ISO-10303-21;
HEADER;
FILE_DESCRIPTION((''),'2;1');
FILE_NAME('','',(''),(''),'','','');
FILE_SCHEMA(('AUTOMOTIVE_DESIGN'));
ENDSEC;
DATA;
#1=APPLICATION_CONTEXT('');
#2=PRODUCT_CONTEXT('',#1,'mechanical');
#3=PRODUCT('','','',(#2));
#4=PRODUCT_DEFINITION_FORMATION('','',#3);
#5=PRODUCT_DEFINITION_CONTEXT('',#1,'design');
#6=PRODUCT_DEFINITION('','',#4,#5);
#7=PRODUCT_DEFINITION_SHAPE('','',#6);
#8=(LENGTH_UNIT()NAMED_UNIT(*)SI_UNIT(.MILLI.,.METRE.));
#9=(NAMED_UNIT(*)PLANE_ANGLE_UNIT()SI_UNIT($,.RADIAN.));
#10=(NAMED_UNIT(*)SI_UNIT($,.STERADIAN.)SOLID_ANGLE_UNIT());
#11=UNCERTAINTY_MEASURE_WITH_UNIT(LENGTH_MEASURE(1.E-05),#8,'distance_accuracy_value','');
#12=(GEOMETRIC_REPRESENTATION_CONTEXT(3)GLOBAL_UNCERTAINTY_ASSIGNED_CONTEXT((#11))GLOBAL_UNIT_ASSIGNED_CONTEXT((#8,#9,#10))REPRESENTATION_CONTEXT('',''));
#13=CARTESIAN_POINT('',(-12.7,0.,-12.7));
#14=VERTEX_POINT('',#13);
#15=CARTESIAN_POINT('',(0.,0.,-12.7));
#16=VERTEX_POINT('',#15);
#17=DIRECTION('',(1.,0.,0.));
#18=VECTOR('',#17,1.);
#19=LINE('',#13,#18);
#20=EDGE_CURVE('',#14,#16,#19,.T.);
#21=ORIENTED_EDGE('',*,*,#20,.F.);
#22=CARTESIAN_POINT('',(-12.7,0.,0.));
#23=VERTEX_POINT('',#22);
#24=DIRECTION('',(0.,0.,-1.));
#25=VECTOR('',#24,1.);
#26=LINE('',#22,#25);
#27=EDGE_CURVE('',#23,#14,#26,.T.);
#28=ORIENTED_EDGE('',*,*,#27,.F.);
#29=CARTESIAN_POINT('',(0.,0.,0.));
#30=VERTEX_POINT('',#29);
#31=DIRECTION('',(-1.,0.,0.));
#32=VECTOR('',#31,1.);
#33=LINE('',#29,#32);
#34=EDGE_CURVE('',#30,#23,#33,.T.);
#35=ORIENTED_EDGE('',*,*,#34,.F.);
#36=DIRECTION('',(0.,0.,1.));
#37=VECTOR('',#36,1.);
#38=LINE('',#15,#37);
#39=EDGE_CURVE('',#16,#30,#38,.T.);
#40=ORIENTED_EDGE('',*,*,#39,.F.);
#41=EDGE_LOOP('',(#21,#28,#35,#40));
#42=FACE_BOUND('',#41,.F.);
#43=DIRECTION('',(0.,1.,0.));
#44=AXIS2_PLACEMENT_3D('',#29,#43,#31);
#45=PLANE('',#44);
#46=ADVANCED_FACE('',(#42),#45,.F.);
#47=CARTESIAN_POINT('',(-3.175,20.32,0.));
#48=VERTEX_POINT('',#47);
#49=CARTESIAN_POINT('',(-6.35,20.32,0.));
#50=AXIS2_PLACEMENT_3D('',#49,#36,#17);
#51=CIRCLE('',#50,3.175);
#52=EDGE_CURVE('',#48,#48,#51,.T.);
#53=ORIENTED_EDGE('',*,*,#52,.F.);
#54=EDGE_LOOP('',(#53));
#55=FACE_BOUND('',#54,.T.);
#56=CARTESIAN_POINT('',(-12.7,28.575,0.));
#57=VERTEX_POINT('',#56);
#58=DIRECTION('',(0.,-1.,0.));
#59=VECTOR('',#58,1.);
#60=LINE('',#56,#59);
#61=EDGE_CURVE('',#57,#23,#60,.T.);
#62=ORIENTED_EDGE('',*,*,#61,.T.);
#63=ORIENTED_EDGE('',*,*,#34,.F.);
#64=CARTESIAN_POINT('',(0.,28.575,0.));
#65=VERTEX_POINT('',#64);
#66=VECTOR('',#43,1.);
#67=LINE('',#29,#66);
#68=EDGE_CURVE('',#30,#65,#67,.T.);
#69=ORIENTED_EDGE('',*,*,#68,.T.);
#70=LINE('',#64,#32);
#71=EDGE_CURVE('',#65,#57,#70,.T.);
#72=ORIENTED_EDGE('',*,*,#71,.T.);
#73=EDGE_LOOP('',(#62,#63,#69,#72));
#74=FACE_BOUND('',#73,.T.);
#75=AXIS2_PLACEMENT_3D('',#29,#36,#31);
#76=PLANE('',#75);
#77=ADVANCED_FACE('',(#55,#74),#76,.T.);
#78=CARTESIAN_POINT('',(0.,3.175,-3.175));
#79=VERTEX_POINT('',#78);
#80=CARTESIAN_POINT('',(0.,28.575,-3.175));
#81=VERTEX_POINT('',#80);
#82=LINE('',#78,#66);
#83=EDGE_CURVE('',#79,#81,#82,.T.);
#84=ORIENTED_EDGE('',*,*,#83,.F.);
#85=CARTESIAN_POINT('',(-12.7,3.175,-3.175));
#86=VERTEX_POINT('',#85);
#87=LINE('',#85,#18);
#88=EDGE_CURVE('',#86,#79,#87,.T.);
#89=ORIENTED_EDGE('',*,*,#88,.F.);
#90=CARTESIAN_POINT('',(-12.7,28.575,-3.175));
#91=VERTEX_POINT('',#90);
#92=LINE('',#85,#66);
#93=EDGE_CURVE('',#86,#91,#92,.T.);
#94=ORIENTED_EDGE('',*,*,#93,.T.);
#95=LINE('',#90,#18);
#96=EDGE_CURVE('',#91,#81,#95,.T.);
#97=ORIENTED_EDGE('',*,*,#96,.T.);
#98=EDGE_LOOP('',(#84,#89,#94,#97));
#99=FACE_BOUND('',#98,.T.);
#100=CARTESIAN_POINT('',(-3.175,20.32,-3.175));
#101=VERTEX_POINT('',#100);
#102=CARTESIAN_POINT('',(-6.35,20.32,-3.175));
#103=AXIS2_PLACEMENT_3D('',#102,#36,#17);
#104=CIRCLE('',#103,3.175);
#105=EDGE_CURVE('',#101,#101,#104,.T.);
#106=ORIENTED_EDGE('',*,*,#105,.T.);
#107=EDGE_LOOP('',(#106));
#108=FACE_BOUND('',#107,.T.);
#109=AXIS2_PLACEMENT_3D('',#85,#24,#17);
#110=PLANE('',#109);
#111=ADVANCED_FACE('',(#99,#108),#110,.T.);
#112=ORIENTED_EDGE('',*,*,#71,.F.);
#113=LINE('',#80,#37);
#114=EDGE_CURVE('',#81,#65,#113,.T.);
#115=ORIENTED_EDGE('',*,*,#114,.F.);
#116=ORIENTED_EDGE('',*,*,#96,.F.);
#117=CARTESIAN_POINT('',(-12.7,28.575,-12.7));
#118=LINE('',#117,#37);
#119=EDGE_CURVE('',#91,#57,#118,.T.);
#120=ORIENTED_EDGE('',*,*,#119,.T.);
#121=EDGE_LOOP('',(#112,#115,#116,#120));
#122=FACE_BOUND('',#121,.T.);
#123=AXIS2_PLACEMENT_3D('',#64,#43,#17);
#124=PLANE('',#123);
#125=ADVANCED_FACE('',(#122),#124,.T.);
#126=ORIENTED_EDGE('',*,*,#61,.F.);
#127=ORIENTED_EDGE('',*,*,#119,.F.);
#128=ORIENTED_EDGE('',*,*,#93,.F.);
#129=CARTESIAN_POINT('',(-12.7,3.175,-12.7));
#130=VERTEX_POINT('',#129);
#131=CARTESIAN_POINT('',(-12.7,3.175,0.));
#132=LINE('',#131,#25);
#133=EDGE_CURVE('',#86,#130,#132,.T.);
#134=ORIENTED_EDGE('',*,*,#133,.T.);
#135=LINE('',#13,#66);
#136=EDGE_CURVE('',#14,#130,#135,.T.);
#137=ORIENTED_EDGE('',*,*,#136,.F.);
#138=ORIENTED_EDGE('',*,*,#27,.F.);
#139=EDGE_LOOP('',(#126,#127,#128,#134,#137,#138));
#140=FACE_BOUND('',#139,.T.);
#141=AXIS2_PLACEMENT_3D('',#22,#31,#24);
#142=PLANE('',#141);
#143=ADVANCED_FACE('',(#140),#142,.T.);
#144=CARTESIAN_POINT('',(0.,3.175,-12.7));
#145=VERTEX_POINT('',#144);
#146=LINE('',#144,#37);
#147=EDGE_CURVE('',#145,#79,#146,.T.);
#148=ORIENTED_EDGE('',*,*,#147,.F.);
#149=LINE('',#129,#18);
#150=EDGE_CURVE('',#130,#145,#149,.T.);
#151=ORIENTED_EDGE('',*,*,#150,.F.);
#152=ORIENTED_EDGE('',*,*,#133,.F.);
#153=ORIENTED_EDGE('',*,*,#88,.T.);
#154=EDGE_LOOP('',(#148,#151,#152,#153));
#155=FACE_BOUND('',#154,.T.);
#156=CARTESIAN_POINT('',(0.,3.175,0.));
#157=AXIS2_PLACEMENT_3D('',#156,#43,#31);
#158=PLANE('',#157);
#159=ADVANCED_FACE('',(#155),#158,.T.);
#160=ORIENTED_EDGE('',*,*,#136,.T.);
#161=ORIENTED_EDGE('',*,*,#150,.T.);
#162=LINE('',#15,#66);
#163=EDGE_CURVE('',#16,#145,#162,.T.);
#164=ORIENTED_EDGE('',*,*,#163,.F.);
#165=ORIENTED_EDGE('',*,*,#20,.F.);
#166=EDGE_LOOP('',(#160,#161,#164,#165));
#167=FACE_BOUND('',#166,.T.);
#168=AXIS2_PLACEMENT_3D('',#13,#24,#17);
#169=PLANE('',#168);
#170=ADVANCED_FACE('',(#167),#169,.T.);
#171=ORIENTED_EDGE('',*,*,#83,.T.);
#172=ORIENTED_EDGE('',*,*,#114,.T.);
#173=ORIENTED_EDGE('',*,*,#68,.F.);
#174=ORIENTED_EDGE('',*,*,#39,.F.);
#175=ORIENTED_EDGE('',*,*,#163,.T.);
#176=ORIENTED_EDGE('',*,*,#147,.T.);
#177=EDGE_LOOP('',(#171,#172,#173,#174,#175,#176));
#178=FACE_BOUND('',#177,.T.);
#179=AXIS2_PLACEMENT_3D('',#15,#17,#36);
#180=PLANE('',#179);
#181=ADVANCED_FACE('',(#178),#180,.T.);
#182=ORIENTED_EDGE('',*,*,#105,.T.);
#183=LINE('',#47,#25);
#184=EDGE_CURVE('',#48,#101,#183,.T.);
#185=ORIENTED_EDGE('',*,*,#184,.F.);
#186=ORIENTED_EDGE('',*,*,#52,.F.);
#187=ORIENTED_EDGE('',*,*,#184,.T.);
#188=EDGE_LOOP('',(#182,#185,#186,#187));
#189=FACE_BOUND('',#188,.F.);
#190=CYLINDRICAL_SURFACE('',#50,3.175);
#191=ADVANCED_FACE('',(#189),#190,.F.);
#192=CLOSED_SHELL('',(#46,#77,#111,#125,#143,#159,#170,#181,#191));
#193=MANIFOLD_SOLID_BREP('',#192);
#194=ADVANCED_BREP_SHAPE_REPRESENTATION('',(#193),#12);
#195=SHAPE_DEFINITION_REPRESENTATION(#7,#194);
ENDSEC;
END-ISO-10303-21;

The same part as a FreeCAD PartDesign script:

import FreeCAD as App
import Part
import Sketcher
Q = App.Units.Quantity


def add_polygon(sketch, points):
    """Adds a closed chain of lines whose ends are joined by coincident constraints."""
    first, n = sketch.GeometryCount, len(points)
    for a, b in zip(points, points[1:] + points[:1]):
        sketch.addGeometry(Part.LineSegment(App.Vector(*a, 0), App.Vector(*b, 0)), False)
    for i in range(n):
        sketch.addConstraint(Sketcher.Constraint("Coincident", first + i, 2, first + (i + 1) % n, 1))

doc = App.newDocument("Part")
params = doc.addObject("Spreadsheet::Sheet", "Params")
for row, (alias, value) in enumerate([
    ("sketch1_width", "0.5 in"),
    ("pad1_length", "0.125 in"),
    ("sketch2_height", "0.125 in"),
    ("sketch2_width", "0.5 in"),
    ("pad2_length", "1 in"),
    ("sketch3_diameter", "0.25 in"),
    ("pocket1_length", "0.1875 in"),
], start=1):
    params.set(f"A{row}", alias)
    params.set(f"B{row}", "=" + value)
    params.setAlias(f"B{row}", alias)

body = doc.addObject("PartDesign::Body", "Body")

sketch1 = body.newObject("Sketcher::SketchObject", "Sketch")
sketch1.AttachmentSupport = (doc.getObject("XZ_Plane"), [""])
sketch1.MapMode = "FlatFace"
add_polygon(sketch1, [(-12.7, 0), (0, 0), (0, -12.7), (-12.7, -12.7)])
sketch1.addConstraint([
    Sketcher.Constraint("Horizontal", 0),
    Sketcher.Constraint("Vertical", 1),
    Sketcher.Constraint("Horizontal", 2),
    Sketcher.Constraint("Vertical", 3),
    Sketcher.Constraint("Coincident", 0, 2, -1, 1),
    Sketcher.Constraint("Equal", 2, 1),
    Sketcher.Constraint("DistanceX", 0, 1, 0, 2, Q("0.5 in")),
])
sketch1.setExpression("Constraints[10]", "Params.sketch1_width")
pad1 = body.newObject("PartDesign::Pad", "Pad")
pad1.Profile = sketch1
pad1.setExpression("Length", "Params.pad1_length")
pad1.Reversed = True

sketch2 = body.newObject("Sketcher::SketchObject", "Sketch001")
sketch2.AttachmentSupport = (doc.getObject("XZ_Plane"), [""])
sketch2.MapMode = "FlatFace"
sketch2.AttachmentOffset = App.Placement(App.Vector(0, 0, -0.125 * 25.4), App.Rotation())
add_polygon(sketch2, [(0, -3.175), (-12.7, -3.175), (-12.7, 0), (0, 0)])
sketch2.addConstraint([
    Sketcher.Constraint("Horizontal", 0),
    Sketcher.Constraint("Vertical", 1),
    Sketcher.Constraint("Horizontal", 2),
    Sketcher.Constraint("Vertical", 3),
    Sketcher.Constraint("Coincident", 2, 2, -1, 1),
    Sketcher.Constraint("DistanceY", 1, 1, 1, 2, Q("0.125 in")),
    Sketcher.Constraint("DistanceX", 0, 2, 0, 1, Q("0.5 in")),
])
sketch2.setExpression("Constraints[9]", "Params.sketch2_height")
sketch2.setExpression("Constraints[10]", "Params.sketch2_width")
pad2 = body.newObject("PartDesign::Pad", "Pad001")
pad2.Profile = sketch2
pad2.setExpression("Length", "Params.pad2_length")
pad2.Reversed = True

sketch3 = body.newObject("Sketcher::SketchObject", "Sketch002")
sketch3.AttachmentSupport = (doc.getObject("XY_Plane"), [""])
sketch3.MapMode = "FlatFace"
sketch3.addGeometry(Part.Circle(App.Vector(-6.35, 20.32, 0), App.Vector(0, 0, 1), 3.175), False)
sketch3.addConstraint([
    Sketcher.Constraint("Diameter", 0, Q("0.25 in")),
    Sketcher.Constraint("DistanceY", -1, 1, 0, 3, Q("0.8 in")),
    Sketcher.Constraint("DistanceX", 0, 3, -1, 1, Q("0.25 in")),
])
sketch3.setExpression("Constraints[0]", "Params.sketch3_diameter")
pocket1 = body.newObject("PartDesign::Pocket", "Pocket")
pocket1.Profile = sketch3
pocket1.setExpression("Length", "Params.pocket1_length")

doc.recompute()
